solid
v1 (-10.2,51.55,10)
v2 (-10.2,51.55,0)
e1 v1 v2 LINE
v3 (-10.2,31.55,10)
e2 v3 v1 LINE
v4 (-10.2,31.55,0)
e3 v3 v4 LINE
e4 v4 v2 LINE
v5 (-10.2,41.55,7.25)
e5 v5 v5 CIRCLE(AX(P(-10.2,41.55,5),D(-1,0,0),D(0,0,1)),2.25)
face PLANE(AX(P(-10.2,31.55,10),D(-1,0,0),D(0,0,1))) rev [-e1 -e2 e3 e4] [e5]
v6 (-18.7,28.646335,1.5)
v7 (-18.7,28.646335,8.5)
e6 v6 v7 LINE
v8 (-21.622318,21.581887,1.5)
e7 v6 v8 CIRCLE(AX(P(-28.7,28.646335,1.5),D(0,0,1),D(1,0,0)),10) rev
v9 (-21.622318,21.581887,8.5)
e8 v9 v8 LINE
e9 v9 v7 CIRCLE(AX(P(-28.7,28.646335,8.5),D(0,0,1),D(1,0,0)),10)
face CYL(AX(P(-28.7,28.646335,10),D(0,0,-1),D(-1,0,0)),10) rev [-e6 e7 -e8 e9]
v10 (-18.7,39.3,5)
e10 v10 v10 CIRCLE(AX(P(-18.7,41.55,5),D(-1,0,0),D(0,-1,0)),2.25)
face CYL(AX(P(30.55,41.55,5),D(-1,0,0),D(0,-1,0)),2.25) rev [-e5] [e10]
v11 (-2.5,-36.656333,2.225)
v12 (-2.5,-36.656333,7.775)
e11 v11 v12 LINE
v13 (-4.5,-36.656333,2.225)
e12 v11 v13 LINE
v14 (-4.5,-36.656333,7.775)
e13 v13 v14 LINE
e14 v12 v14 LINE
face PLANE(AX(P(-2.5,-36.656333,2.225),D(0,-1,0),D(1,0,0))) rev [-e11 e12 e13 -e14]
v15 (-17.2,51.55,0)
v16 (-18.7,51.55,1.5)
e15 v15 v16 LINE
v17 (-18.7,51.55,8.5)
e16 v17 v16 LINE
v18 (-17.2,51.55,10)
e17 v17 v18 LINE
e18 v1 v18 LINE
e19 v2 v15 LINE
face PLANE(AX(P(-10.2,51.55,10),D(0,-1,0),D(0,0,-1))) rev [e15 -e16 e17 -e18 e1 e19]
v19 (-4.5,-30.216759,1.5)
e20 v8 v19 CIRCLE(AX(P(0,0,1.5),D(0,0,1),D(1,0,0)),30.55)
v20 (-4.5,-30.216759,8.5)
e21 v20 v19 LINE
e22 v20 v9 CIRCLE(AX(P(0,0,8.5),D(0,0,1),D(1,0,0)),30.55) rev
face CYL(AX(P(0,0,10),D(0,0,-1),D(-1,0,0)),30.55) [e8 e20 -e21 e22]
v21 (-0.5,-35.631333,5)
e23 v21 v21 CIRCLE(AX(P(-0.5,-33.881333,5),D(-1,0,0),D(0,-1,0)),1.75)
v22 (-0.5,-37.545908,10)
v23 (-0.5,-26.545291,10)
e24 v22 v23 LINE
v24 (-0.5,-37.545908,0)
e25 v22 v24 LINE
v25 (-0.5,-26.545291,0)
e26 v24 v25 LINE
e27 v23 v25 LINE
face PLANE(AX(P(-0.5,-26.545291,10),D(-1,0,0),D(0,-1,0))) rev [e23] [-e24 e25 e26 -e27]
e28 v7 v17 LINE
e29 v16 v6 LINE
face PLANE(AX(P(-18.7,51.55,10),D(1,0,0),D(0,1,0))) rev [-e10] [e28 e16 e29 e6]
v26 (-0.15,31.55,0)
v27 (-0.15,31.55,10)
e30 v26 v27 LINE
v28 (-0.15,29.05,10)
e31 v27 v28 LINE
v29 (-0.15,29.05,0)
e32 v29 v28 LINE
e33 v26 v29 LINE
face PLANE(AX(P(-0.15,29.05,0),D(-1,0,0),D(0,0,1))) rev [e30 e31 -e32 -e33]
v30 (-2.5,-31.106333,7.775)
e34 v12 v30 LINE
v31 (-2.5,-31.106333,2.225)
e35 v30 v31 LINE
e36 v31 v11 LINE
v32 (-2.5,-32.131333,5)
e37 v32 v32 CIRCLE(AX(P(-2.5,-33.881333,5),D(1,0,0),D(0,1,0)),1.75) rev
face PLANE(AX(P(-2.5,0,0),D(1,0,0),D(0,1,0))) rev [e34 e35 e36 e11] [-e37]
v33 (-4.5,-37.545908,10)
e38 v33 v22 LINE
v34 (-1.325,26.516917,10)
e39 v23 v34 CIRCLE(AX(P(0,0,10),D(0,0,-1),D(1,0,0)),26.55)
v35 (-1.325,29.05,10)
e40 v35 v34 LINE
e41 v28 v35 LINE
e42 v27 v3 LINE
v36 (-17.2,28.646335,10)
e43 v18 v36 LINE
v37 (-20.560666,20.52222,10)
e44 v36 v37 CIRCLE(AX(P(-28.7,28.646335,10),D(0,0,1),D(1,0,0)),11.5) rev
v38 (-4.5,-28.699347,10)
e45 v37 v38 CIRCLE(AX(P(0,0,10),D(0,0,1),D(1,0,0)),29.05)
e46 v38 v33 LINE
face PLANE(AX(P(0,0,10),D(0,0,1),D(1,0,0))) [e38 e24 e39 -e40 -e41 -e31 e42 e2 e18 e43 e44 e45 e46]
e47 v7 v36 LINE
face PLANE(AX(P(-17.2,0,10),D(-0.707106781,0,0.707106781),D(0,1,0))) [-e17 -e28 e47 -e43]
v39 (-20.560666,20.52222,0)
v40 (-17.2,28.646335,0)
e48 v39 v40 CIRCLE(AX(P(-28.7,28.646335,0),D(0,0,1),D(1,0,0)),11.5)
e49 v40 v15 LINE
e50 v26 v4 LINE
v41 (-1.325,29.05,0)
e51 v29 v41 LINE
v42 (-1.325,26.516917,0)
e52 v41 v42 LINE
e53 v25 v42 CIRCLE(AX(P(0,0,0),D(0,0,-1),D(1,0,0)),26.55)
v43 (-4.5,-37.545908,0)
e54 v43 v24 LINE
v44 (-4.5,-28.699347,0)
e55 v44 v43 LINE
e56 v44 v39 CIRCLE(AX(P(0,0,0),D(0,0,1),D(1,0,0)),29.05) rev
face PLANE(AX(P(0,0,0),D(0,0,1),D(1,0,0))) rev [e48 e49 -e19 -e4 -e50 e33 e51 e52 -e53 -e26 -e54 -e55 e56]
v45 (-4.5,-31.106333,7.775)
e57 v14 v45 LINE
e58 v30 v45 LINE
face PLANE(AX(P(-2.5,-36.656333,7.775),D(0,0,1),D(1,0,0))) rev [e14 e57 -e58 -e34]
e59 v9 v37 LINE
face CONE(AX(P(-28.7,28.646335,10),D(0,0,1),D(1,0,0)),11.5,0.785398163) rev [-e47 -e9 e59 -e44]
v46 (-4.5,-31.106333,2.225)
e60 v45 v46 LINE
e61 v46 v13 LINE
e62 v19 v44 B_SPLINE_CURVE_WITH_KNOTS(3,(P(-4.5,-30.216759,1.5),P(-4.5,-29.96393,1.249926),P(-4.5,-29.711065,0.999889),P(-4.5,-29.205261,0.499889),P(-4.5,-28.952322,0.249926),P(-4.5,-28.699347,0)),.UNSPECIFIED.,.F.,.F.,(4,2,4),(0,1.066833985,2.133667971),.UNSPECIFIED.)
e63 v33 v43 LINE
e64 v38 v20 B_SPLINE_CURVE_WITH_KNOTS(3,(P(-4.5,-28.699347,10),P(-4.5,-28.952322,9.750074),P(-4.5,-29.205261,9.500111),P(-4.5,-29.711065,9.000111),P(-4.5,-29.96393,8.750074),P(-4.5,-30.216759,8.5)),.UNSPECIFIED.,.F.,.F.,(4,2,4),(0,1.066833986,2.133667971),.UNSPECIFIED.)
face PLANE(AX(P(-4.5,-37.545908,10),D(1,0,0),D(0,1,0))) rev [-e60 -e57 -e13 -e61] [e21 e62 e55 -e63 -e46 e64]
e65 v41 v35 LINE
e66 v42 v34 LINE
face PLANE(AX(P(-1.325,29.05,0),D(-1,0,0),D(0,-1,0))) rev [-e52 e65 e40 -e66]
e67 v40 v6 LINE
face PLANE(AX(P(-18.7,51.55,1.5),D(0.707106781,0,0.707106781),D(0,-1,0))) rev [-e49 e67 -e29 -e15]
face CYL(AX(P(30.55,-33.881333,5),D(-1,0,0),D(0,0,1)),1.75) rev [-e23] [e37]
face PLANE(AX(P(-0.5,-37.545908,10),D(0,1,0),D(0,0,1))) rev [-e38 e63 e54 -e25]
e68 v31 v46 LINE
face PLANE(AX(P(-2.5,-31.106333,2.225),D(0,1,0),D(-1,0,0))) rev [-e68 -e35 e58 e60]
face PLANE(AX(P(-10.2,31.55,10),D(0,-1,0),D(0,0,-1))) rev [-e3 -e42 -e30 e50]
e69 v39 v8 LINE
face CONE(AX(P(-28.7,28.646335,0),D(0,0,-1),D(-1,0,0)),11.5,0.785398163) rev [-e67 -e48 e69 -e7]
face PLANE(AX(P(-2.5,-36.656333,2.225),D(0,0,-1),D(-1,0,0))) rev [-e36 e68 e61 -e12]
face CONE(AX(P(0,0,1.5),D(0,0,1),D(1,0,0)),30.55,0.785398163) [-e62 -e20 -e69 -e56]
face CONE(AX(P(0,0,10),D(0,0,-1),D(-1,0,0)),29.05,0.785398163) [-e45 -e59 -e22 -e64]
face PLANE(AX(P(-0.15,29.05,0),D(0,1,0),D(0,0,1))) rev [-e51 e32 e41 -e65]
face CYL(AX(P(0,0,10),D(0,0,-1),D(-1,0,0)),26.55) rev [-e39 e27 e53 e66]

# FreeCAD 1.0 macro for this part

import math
import FreeCAD as App
import Part
import Sketcher


def edges_at(feature, points):
    """Names of the edges that pass closest to the given points."""
    edges = feature.Shape.Edges
    near = lambda p: min(range(len(edges)), key=lambda i: edges[i].distToShape(Part.Vertex(*p))[0])
    return sorted({f"Edge{near(p) + 1}" for p in points})

doc = App.newDocument("Part")
body = doc.addObject("PartDesign::Body", "Body")

# Sketch on XY plane
sketch1 = body.newObject("Sketcher::SketchObject", "Sketch")
sketch1.AttachmentSupport = (doc.getObject("XY_Plane"), [""])
sketch1.MapMode = "FlatFace"
sketch1.addGeometry([
    Part.LineSegment(App.Vector(0.5, -26.5, 0), App.Vector(0.5, -37.5, 0)),  # 0
    Part.LineSegment(App.Vector(0.5, -37.5, 0), App.Vector(4.5, -37.5, 0)),  # 1
    Part.LineSegment(App.Vector(4.5, -37.5, 0), App.Vector(4.5, -30.2, 0)),  # 2
    Part.ArcOfCircle(Part.Circle(App.Vector(0, 0, 0), App.Vector(0, 0, 1), 30.6), math.radians(-82), math.radians(52)),  # 3
    Part.LineSegment(App.Vector(18.7, 24.2, 0), App.Vector(18.7, 51.5, 0)),  # 4
    Part.LineSegment(App.Vector(18.7, 51.5, 0), App.Vector(10.2, 51.5, 0)),  # 5
    Part.LineSegment(App.Vector(10.2, 51.5, 0), App.Vector(10.2, 31.6, 0)),  # 6
    Part.LineSegment(App.Vector(10.2, 31.6, 0), App.Vector(-10.2, 31.6, 0)),  # 7
    Part.LineSegment(App.Vector(-10.2, 31.6, 0), App.Vector(-10.2, 51.5, 0)),  # 8
    Part.LineSegment(App.Vector(-10.2, 51.5, 0), App.Vector(-18.7, 51.5, 0)),  # 9
    Part.LineSegment(App.Vector(-18.7, 51.5, 0), App.Vector(-18.7, 24.2, 0)),  # 10
    Part.ArcOfCircle(Part.Circle(App.Vector(0, 0, 0), App.Vector(0, 0, 1), 30.6), math.radians(128), math.radians(262)),  # 11
    Part.LineSegment(App.Vector(-4.5, -30.2, 0), App.Vector(-4.5, -37.5, 0)),  # 12
    Part.LineSegment(App.Vector(-4.5, -37.5, 0), App.Vector(-0.5, -37.5, 0)),  # 13
    Part.LineSegment(App.Vector(-0.5, -37.5, 0), App.Vector(-0.5, -26.5, 0)),  # 14
    Part.ArcOfCircle(Part.Circle(App.Vector(0, 0, 0), App.Vector(0, 0, 1), 26.6), math.radians(-89), math.radians(269)),  # 15
], False)
sketch1.addConstraint([
    Sketcher.Constraint("Coincident", 0, 2, 1, 1),
    Sketcher.Constraint("Coincident", 1, 2, 2, 1),
    Sketcher.Constraint("Coincident", 2, 2, 3, 1),
    Sketcher.Constraint("Coincident", 3, 2, 4, 1),
    Sketcher.Constraint("Coincident", 4, 2, 5, 1),
    Sketcher.Constraint("Coincident", 5, 2, 6, 1),
    Sketcher.Constraint("Coincident", 6, 2, 7, 1),
    Sketcher.Constraint("Coincident", 7, 2, 8, 1),
    Sketcher.Constraint("Coincident", 8, 2, 9, 1),
    Sketcher.Constraint("Coincident", 9, 2, 10, 1),
    Sketcher.Constraint("Coincident", 10, 2, 11, 1),
    Sketcher.Constraint("Coincident", 11, 2, 12, 1),
    Sketcher.Constraint("Coincident", 12, 2, 13, 1),
    Sketcher.Constraint("Coincident", 13, 2, 14, 1),
    Sketcher.Constraint("Coincident", 14, 2, 15, 2),
    Sketcher.Constraint("Coincident", 15, 1, 0, 1),
    Sketcher.Constraint("Vertical", 0),
    Sketcher.Constraint("Horizontal", 1),
    Sketcher.Constraint("Vertical", 2),
    Sketcher.Constraint("Vertical", 4),
    Sketcher.Constraint("Horizontal", 5),
    Sketcher.Constraint("Vertical", 6),
    Sketcher.Constraint("Horizontal", 7),
    Sketcher.Constraint("Vertical", 8),
    Sketcher.Constraint("Horizontal", 9),
    Sketcher.Constraint("Vertical", 10),
    Sketcher.Constraint("Vertical", 12),
    Sketcher.Constraint("Horizontal", 13),
    Sketcher.Constraint("Vertical", 14),
    Sketcher.Constraint("Coincident", 3, 3, -1, 1),
    Sketcher.Constraint("Coincident", 11, 3, -1, 1),
    Sketcher.Constraint("Coincident", 15, 3, -1, 1),
    Sketcher.Constraint("Equal", 3, 11),
    Sketcher.Constraint("Symmetric", 5, 2, 8, 2, -2),
    Sketcher.Constraint("Symmetric", 1, 2, 12, 2, -2),
    Sketcher.Constraint("Horizontal", 3, 2, 10, 2),
    Sketcher.Constraint("Horizontal", 14, 2, 15, 1),
    Sketcher.Constraint("DistanceX", 1, 1, 1, 2, 4.0),
    Sketcher.Constraint("DistanceY", 6, 2, 6, 1, 20.0),
    Sketcher.Constraint("Radius", 3, 30.55),
    Sketcher.Constraint("Radius", 15, 26.55),
    Sketcher.Constraint("DistanceX", 5, 2, 5, 1, 8.5),
    Sketcher.Constraint("DistanceX", 7, 2, 7, 1, 20.4),
    Sketcher.Constraint("DistanceX", 11, 2, 0, 2, 5.0),
    Sketcher.Constraint("DistanceY", -1, 1, 4, 2, 51.55),
    Sketcher.Constraint("DistanceY", 2, 1, 2, 2, 7.329149),
])
pad1 = body.newObject("PartDesign::Pad", "Pad")
pad1.Profile = sketch1
pad1.Length = 10

# Sketch on YZ plane
sketch2 = body.newObject("Sketcher::SketchObject", "Sketch001")
sketch2.AttachmentSupport = (doc.getObject("YZ_Plane"), [""])
sketch2.MapMode = "FlatFace"
sketch2.AttachmentOffset = App.Placement(App.Vector(0, 0, -4.5), App.Rotation())
sketch2.addGeometry(Part.Circle(App.Vector(-33.9, 5, 0), App.Vector(0, 0, 1), 1.8), False)
sketch2.addConstraint([
    Sketcher.Constraint("Diameter", 0, 3.5),
    Sketcher.Constraint("DistanceY", -1, 1, 0, 3, 5.0),
    Sketcher.Constraint("DistanceX", 0, 3, -1, 1, 33.881333),
])
pocket1 = body.newObject("PartDesign::Pocket", "Pocket")
pocket1.Profile = sketch2
pocket1.Type = "ThroughAll"
pocket1.Reversed = True

# Sketch on YZ plane
sketch3 = body.newObject("Sketcher::SketchObject", "Sketch002")
sketch3.AttachmentSupport = (doc.getObject("YZ_Plane"), [""])
sketch3.MapMode = "FlatFace"
sketch3.AttachmentOffset = App.Placement(App.Vector(0, 0, -18.7), App.Rotation())
sketch3.addGeometry(Part.Circle(App.Vector(41.5, 5, 0), App.Vector(0, 0, 1), 2.2), False)
sketch3.addConstraint([
    Sketcher.Constraint("Diameter", 0, 4.5),
    Sketcher.Constraint("DistanceY", -1, 1, 0, 3, 5.0),
    Sketcher.Constraint("DistanceX", -1, 1, 0, 3, 41.55),
])
pocket2 = body.newObject("PartDesign::Pocket", "Pocket001")
pocket2.Profile = sketch3
pocket2.Type = "ThroughAll"
pocket2.Reversed = True
doc.recompute()

fillet = body.newObject("PartDesign::Fillet", "Fillet")
fillet.Base = (pocket2, edges_at(pocket2, [(-18.7, 24.158, 5), (18.7, 24.158, 5)]))
fillet.Radius = 10

# Sketch on YZ plane
sketch4 = body.newObject("Sketcher::SketchObject", "Sketch003")
sketch4.AttachmentSupport = (doc.getObject("YZ_Plane"), [""])
sketch4.MapMode = "FlatFace"
sketch4.AttachmentOffset = App.Placement(App.Vector(0, 0, -4.5), App.Rotation())
sketch4.addGeometry([
    Part.LineSegment(App.Vector(-31, 2, 0), App.Vector(-37, 2, 0)),
    Part.LineSegment(App.Vector(-37, 2, 0), App.Vector(-37, 8, 0)),
    Part.LineSegment(App.Vector(-37, 8, 0), App.Vector(-31, 8, 0)),
    Part.LineSegment(App.Vector(-31, 8, 0), App.Vector(-31, 2, 0)),
], False)
sketch4.addConstraint([
    Sketcher.Constraint("Coincident", 0, 2, 1, 1),
    Sketcher.Constraint("Coincident", 1, 2, 2, 1),
    Sketcher.Constraint("Coincident", 2, 2, 3, 1),
    Sketcher.Constraint("Coincident", 3, 2, 0, 1),
    Sketcher.Constraint("Horizontal", 0),
    Sketcher.Constraint("Vertical", 1),
    Sketcher.Constraint("Horizontal", 2),
    Sketcher.Constraint("Vertical", 3),
    Sketcher.Constraint("Equal", 2, 1),
    Sketcher.Constraint("DistanceX", 0, 2, 0, 1, 5.55),
    Sketcher.Constraint("DistanceY", -1, 1, 0, 2, 2.225),
    Sketcher.Constraint("DistanceX", 0, 2, -1, 1, 36.656333),
])
pocket3 = body.newObject("PartDesign::Pocket", "Pocket002")
pocket3.Profile = sketch4
pocket3.Length = 2
pocket3.Reversed = True

# Sketch on XY plane
sketch5 = body.newObject("Sketcher::SketchObject", "Sketch004")
sketch5.AttachmentSupport = (doc.getObject("XY_Plane"), [""])
sketch5.MapMode = "FlatFace"
sketch5.addGeometry([
    Part.LineSegment(App.Vector(0, 64, 0), App.Vector(0, -55, 0)),
    Part.LineSegment(App.Vector(0, -55, 0), App.Vector(48, -55, 0)),
    Part.LineSegment(App.Vector(48, -55, 0), App.Vector(40, 64, 0)),
    Part.LineSegment(App.Vector(40, 64, 0), App.Vector(0, 64, 0)),
], False)
sketch5.addConstraint([
    Sketcher.Constraint("Coincident", 0, 2, 1, 1),
    Sketcher.Constraint("Coincident", 1, 2, 2, 1),
    Sketcher.Constraint("Coincident", 2, 2, 3, 1),
    Sketcher.Constraint("Coincident", 3, 2, 0, 1),
    Sketcher.Constraint("Vertical", 0),
    Sketcher.Constraint("Horizontal", 1),
    Sketcher.Constraint("Horizontal", 3),
    Sketcher.Constraint("PointOnObject", 0, 2, -2),
    Sketcher.Constraint("DistanceY", 0, 2, 0, 1, 118.732591),
    Sketcher.Constraint("DistanceX", 1, 1, 1, 2, 48.360414),
    Sketcher.Constraint("DistanceX", 3, 2, 3, 1, 40.013947),
    Sketcher.Constraint("DistanceY", 0, 2, -1, 1, 54.819103),
])
pocket4 = body.newObject("PartDesign::Pocket", "Pocket003")
pocket4.Profile = sketch5
pocket4.Type = "ThroughAll"
pocket4.Reversed = True
doc.recompute()

chamfer = body.newObject("PartDesign::Chamfer", "Chamfer")
chamfer.Base = (pocket4, edges_at(pocket4, [
    (-18.7, 40.098, 0),
    (-18.7, 40.098, 10),
    (-29.006, -9.588, 0),
    (-29.006, -9.588, 10),
    (-19.459, 24.824, 0),
    (-19.459, 24.824, 10),
]))
chamfer.Size = 1.5

# Sketch on XY plane
sketch6 = body.newObject("Sketcher::SketchObject", "Sketch005")
sketch6.AttachmentSupport = (doc.getObject("XY_Plane"), [""])
sketch6.MapMode = "FlatFace"
sketch6.AttachmentOffset = App.Placement(App.Vector(0, 0, 10), App.Rotation())
sketch6.addGeometry([
    Part.LineSegment(App.Vector(1.32, 29.05, 0), App.Vector(0, 29.05, 0)),  # 0
    Part.LineSegment(App.Vector(0, 29.05, 0), App.Vector(0, 31.55, 0)),  # 1
    Part.LineSegment(App.Vector(0, 31.55, 0), App.Vector(-0.15, 31.55, 0)),  # 2
    Part.LineSegment(App.Vector(-0.15, 31.55, 0), App.Vector(-0.15, 29.05, 0)),  # 3
    Part.LineSegment(App.Vector(-0.15, 29.05, 0), App.Vector(-1.32, 29.05, 0)),  # 4
    Part.LineSegment(App.Vector(-1.32, 29.05, 0), App.Vector(-1.32, 23.52, 0)),  # 5
    Part.LineSegment(App.Vector(-1.32, 23.52, 0), App.Vector(1.32, 23.52, 0)),  # 6
    Part.LineSegment(App.Vector(1.32, 23.52, 0), App.Vector(1.32, 29.05, 0)),  # 7
], False)
sketch6.addConstraint([
    Sketcher.Constraint("Coincident", 0, 2, 1, 1),
    Sketcher.Constraint("Coincident", 1, 2, 2, 1),
    Sketcher.Constraint("Coincident", 2, 2, 3, 1),
    Sketcher.Constraint("Coincident", 3, 2, 4, 1),
    Sketcher.Constraint("Coincident", 4, 2, 5, 1),
    Sketcher.Constraint("Coincident", 5, 2, 6, 1),
    Sketcher.Constraint("Coincident", 6, 2, 7, 1),
    Sketcher.Constraint("Coincident", 7, 2, 0, 1),
    Sketcher.Constraint("Horizontal", 0),
    Sketcher.Constraint("Vertical", 1),
    Sketcher.Constraint("Horizontal", 2),
    Sketcher.Constraint("Vertical", 3),
    Sketcher.Constraint("Horizontal", 4),
    Sketcher.Constraint("Vertical", 5),
    Sketcher.Constraint("Horizontal", 6),
    Sketcher.Constraint("Vertical", 7),
    Sketcher.Constraint("Symmetric", 4, 2, 7, 2, -2),
    Sketcher.Constraint("PointOnObject", 0, 2, -2),
    Sketcher.Constraint("DistanceY", 1, 1, 1, 2, 2.5),
    Sketcher.Constraint("DistanceX", 2, 2, 2, 1, 0.15),
    Sketcher.Constraint("DistanceX", 6, 1, 6, 2, 2.65),
    Sketcher.Constraint("DistanceY", -1, 1, 0, 2, 29.05),
    Sketcher.Constraint("DistanceY", 5, 2, 5, 1, 5.527555),
])
pocket5 = body.newObject("PartDesign::Pocket", "Pocket004")
pocket5.Profile = sketch6
pocket5.Type = "ThroughAll"

doc.recompute()
